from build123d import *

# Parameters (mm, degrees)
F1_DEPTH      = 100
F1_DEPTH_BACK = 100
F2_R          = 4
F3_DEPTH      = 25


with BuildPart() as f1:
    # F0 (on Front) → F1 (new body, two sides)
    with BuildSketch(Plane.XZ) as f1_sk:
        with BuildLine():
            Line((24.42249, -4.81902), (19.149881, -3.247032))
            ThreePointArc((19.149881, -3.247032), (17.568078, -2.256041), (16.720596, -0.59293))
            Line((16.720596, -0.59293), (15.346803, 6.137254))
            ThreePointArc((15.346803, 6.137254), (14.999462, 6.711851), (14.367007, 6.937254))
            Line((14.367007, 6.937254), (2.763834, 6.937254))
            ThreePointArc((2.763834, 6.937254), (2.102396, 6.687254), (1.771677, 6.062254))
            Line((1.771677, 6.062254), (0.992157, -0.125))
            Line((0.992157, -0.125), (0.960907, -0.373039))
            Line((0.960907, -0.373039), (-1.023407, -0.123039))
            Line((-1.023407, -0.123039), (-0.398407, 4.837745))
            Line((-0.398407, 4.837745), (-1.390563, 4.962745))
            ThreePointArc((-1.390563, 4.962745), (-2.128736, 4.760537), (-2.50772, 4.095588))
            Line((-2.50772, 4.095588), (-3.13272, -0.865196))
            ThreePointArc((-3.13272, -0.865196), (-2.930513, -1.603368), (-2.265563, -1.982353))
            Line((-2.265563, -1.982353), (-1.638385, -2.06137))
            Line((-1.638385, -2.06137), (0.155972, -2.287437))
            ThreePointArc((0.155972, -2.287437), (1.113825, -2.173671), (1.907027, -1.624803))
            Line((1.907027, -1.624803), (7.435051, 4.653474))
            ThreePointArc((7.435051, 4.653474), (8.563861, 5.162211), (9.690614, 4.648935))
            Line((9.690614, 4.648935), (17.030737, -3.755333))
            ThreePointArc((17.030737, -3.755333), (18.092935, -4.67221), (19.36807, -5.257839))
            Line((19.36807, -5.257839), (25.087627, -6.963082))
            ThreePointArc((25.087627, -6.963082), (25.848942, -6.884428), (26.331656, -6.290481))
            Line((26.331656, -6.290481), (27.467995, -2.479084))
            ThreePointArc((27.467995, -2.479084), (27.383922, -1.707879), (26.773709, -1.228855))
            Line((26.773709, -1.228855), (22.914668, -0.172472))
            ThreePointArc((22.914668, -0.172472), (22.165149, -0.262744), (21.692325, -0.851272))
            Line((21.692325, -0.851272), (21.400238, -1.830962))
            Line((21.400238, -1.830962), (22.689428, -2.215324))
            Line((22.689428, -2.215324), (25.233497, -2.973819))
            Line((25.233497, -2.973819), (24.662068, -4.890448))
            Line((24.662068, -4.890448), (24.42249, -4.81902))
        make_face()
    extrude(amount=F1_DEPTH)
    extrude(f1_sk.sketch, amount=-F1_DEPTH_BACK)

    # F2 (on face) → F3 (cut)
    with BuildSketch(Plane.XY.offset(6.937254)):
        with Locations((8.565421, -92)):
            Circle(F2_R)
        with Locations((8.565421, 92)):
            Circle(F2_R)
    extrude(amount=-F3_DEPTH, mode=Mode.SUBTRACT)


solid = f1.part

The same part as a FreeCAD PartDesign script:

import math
import FreeCAD as App
import Part
import Sketcher

V = App.Vector

doc = App.newDocument("Part")
params = doc.addObject("Spreadsheet::Sheet", "Params")
for row, (alias, value) in enumerate([
    ("sketch1_radius", "1.000001 mm"),
    ("sketch1_radius2", "1 mm"),
    ("sketch1_radius3", "1 mm"),
    ("sketch1_radius4", "1 mm"),
    ("sketch1_radius5", "4.999998 mm"),
    ("pad1_length", "100 mm"),
    ("pad1_length2", "100 mm"),
    ("sketch2_diameter", "8 mm"),
    ("pocket1_length", "25 mm"),
], start=1):
    params.set(f"A{row}", alias)
    params.set(f"B{row}", "=" + value)
    params.setAlias(f"B{row}", alias)

body = doc.addObject("PartDesign::Body", "Body")

sketch1 = body.newObject("Sketcher::SketchObject", "Sketch")
sketch1.AttachmentSupport = (doc.getObject("XZ_Plane"), [""])
sketch1.MapMode = "FlatFace"
sketch1.addGeometry(Part.LineSegment(V(24.42249, -4.81902, 0), V(19.149881, -3.247032, 0)), False)
sketch1.addGeometry(Part.ArcOfCircle(Part.Circle(V(20.14988, 0.107068, 0), V(0, 0, 1), 3.499998), math.radians(-168.463068), math.radians(-106.601538)), False)
sketch1.addGeometry(Part.LineSegment(V(16.720596, -0.59293, 0), V(15.346803, 6.137254, 0)), False)
sketch1.addGeometry(Part.ArcOfCircle(Part.Circle(V(14.367007, 5.937253, 0), V(0, 0, 1), 1.000001), math.radians(11.536982), math.radians(89.999983)), False)
sketch1.addGeometry(Part.LineSegment(V(14.367007, 6.937254, 0), V(2.763834, 6.937254, 0)), False)
sketch1.addGeometry(Part.ArcOfCircle(Part.Circle(V(2.763834, 5.937254, 0), V(0, 0, 1), 1), math.radians(89.999994), math.radians(172.819236)), False)
sketch1.addGeometry(Part.LineSegment(V(1.771677, 6.062254, 0), V(0.992157, -0.125, 0)), False)
sketch1.addGeometry(Part.LineSegment(V(0.992157, -0.125, 0), V(0.960907, -0.373039, 0)), False)
sketch1.addGeometry(Part.LineSegment(V(0.960907, -0.373039, 0), V(-1.023407, -0.123039, 0)), False)
sketch1.addGeometry(Part.LineSegment(V(-1.023407, -0.123039, 0), V(-0.398407, 4.837745, 0)), False)
sketch1.addGeometry(Part.LineSegment(V(-0.398407, 4.837745, 0), V(-1.390563, 4.962745, 0)), False)
sketch1.addGeometry(Part.ArcOfCircle(Part.Circle(V(-1.515563, 3.970588, 0), V(0, 0, 1), 1), math.radians(82.819243), math.radians(172.819249)), False)
sketch1.addGeometry(Part.LineSegment(V(-2.50772, 4.095588, 0), V(-3.13272, -0.865196, 0)), False)
sketch1.addGeometry(Part.ArcOfCircle(Part.Circle(V(-2.140564, -0.990196, 0), V(0, 0, 1), 1), math.radians(172.819219), math.radians(262.819273)), False)
sketch1.addGeometry(Part.LineSegment(V(-2.265563, -1.982353, 0), V(-1.638385, -2.06137, 0)), False)
sketch1.addGeometry(Part.LineSegment(V(-1.638385, -2.06137, 0), V(0.155972, -2.287437, 0)), False)
sketch1.addGeometry(Part.ArcOfCircle(Part.Circle(V(0.405974, -0.303128, 0), V(0, 0, 1), 1.999996), math.radians(-97.180843), math.radians(-41.363881)), False)
sketch1.addGeometry(Part.LineSegment(V(1.907027, -1.624803, 0), V(7.435051, 4.653474, 0)), False)
sketch1.addGeometry(Part.ArcOfCircle(Part.Circle(V(8.560842, 3.662212, 0), V(0, 0, 1), 1.500002), math.radians(41.133406), math.radians(138.635995)), False)
sketch1.addGeometry(Part.LineSegment(V(9.690614, 4.648935, 0), V(17.030737, -3.755333, 0)), False)
sketch1.addGeometry(Part.ArcOfCircle(Part.Circle(V(20.796639, -0.466266, 0), V(0, 0, 1), 4.999998), math.radians(-138.866659), math.radians(-106.601531)), False)
sketch1.addGeometry(Part.LineSegment(V(19.36807, -5.257839, 0), V(25.087627, -6.963082, 0)), False)
sketch1.addGeometry(Part.ArcOfCircle(Part.Circle(V(25.373341, -6.004766, 0), V(0, 0, 1), 1), math.radians(-106.601508), math.radians(-16.601555)), False)
sketch1.addGeometry(Part.LineSegment(V(26.331656, -6.290481, 0), V(27.467995, -2.479084, 0)), False)
sketch1.addGeometry(Part.ArcOfCircle(Part.Circle(V(26.50968, -2.19337, 0), V(0, 0, 1), 1), math.radians(-16.601555), math.radians(74.690753)), False)
sketch1.addGeometry(Part.LineSegment(V(26.773709, -1.228855, 0), V(22.914668, -0.172472, 0)), False)
sketch1.addGeometry(Part.ArcOfCircle(Part.Circle(V(22.650638, -1.136984, 0), V(0, 0, 1), 0.999998), math.radians(74.690644), math.radians(163.398543)), False)
sketch1.addGeometry(Part.LineSegment(V(21.692325, -0.851272, 0), V(21.400238, -1.830962, 0)), False)
sketch1.addGeometry(Part.LineSegment(V(21.400238, -1.830962, 0), V(22.689428, -2.215324, 0)), False)
sketch1.addGeometry(Part.LineSegment(V(22.689428, -2.215324, 0), V(25.233497, -2.973819, 0)), False)
sketch1.addGeometry(Part.LineSegment(V(25.233497, -2.973819, 0), V(24.662068, -4.890448, 0)), False)
sketch1.addGeometry(Part.LineSegment(V(24.662068, -4.890448, 0), V(24.42249, -4.81902, 0)), False)
sketch1.addConstraint(Sketcher.Constraint("Coincident", 0, 2, 1, 2))
sketch1.addConstraint(Sketcher.Constraint("Coincident", 1, 1, 2, 1))
sketch1.addConstraint(Sketcher.Constraint("Coincident", 2, 2, 3, 1))
sketch1.addConstraint(Sketcher.Constraint("Coincident", 3, 2, 4, 1))
sketch1.addConstraint(Sketcher.Constraint("Coincident", 4, 2, 5, 1))
sketch1.addConstraint(Sketcher.Constraint("Coincident", 5, 2, 6, 1))
sketch1.addConstraint(Sketcher.Constraint("Coincident", 6, 2, 7, 1))
sketch1.addConstraint(Sketcher.Constraint("Coincident", 7, 2, 8, 1))
sketch1.addConstraint(Sketcher.Constraint("Coincident", 8, 2, 9, 1))
sketch1.addConstraint(Sketcher.Constraint("Coincident", 9, 2, 10, 1))
sketch1.addConstraint(Sketcher.Constraint("Coincident", 10, 2, 11, 1))
sketch1.addConstraint(Sketcher.Constraint("Coincident", 11, 2, 12, 1))
sketch1.addConstraint(Sketcher.Constraint("Coincident", 12, 2, 13, 1))
sketch1.addConstraint(Sketcher.Constraint("Coincident", 13, 2, 14, 1))
sketch1.addConstraint(Sketcher.Constraint("Coincident", 14, 2, 15, 1))
sketch1.addConstraint(Sketcher.Constraint("Coincident", 15, 2, 16, 1))
sketch1.addConstraint(Sketcher.Constraint("Coincident", 16, 2, 17, 1))
sketch1.addConstraint(Sketcher.Constraint("Coincident", 17, 2, 18, 2))
sketch1.addConstraint(Sketcher.Constraint("Coincident", 18, 1, 19, 1))
sketch1.addConstraint(Sketcher.Constraint("Coincident", 19, 2, 20, 1))
sketch1.addConstraint(Sketcher.Constraint("Coincident", 20, 2, 21, 1))
sketch1.addConstraint(Sketcher.Constraint("Coincident", 21, 2, 22, 1))
sketch1.addConstraint(Sketcher.Constraint("Coincident", 22, 2, 23, 1))
sketch1.addConstraint(Sketcher.Constraint("Coincident", 23, 2, 24, 1))
sketch1.addConstraint(Sketcher.Constraint("Coincident", 24, 2, 25, 1))
sketch1.addConstraint(Sketcher.Constraint("Coincident", 25, 2, 26, 1))
sketch1.addConstraint(Sketcher.Constraint("Coincident", 26, 2, 27, 1))
sketch1.addConstraint(Sketcher.Constraint("Coincident", 27, 2, 28, 1))
sketch1.addConstraint(Sketcher.Constraint("Coincident", 28, 2, 29, 1))
sketch1.addConstraint(Sketcher.Constraint("Coincident", 29, 2, 30, 1))
sketch1.addConstraint(Sketcher.Constraint("Coincident", 30, 2, 31, 1))
sketch1.addConstraint(Sketcher.Constraint("Coincident", 31, 2, 0, 1))
sketch1.addConstraint(Sketcher.Constraint("Horizontal", 4))
sketch1.addConstraint(Sketcher.Constraint("Radius", 3, 1.000001))
sketch1.addConstraint(Sketcher.Constraint("Radius", 5, 1.0))
sketch1.addConstraint(Sketcher.Constraint("Radius", 11, 1.0))
sketch1.addConstraint(Sketcher.Constraint("Radius", 13, 1.0))
sketch1.addConstraint(Sketcher.Constraint("Radius", 20, 4.999998))
sketch1.addConstraint(Sketcher.Constraint("Radius", 22, 1.0))
sketch1.addConstraint(Sketcher.Constraint("Radius", 24, 1.0))
sketch1.addConstraint(Sketcher.Constraint("Distance", 8, 2.000001))
sketch1.addConstraint(Sketcher.Constraint("Distance", 9, 5.0))
sketch1.addConstraint(Sketcher.Constraint("Distance", 10, 0.999999))
sketch1.addConstraint(Sketcher.Constraint("Distance", 12, 5.0))
sketch1.addConstraint(Sketcher.Constraint("Distance", 30, 1.999999))
sketch1.addConstraint(Sketcher.Constraint("DistanceX", 0, 2, 1, 3, 0.999999))
sketch1.addConstraint(Sketcher.Constraint("DistanceY", 3, 3, 2, 2, 0.200001))
sketch1.addConstraint(Sketcher.Constraint("Distance", 7, 0.25))
sketch1.addConstraint(Sketcher.Constraint("Distance", 31, 0.249999))
sketch1.addConstraint(Sketcher.Constraint("DistanceY", 7, 2, 8, 2, 0.25))
sketch1.addConstraint(Sketcher.Constraint("DistanceY", 6, 2, -1, 1, 0.125))
sketch1.addConstraint(Sketcher.Constraint("Radius", 1, 3.499998))
sketch1.addConstraint(Sketcher.Constraint("Radius", 16, 1.999996))
sketch1.addConstraint(Sketcher.Constraint("Radius", 18, 1.500002))
sketch1.addConstraint(Sketcher.Constraint("Radius", 26, 0.999998))
sketch1.addConstraint(Sketcher.Constraint("DistanceX", 13, 3, 11, 3, 0.625))
sketch1.addConstraint(Sketcher.Constraint("DistanceX", 20, 3, 26, 3, 1.853999))
sketch1.addConstraint(Sketcher.Constraint("DistanceY", 5, 3, 5, 2, 0.125))
sketch1.addConstraint(Sketcher.Constraint("DistanceX", 8, 2, 9, 2, 0.625))
sketch1.addConstraint(Sketcher.Constraint("DistanceY", 9, 2, 10, 2, 0.125))
sketch1.addConstraint(Sketcher.Constraint("DistanceX", 11, 3, 10, 2, 0.125))
sketch1.addConstraint(Sketcher.Constraint("DistanceY", 11, 3, 11, 2, 0.125))
sketch1.addConstraint(Sketcher.Constraint("DistanceY", 13, 3, 12, 2, 0.125))
sketch1.addConstraint(Sketcher.Constraint("DistanceX", 13, 2, 13, 3, 0.124999))
sketch1.addConstraint(Sketcher.Constraint("DistanceX", 20, 3, 22, 3, 4.576701))
sketch1.addConstraint(Sketcher.Constraint("DistanceY", 22, 3, 20, 3, 5.538501))
sketch1.addConstraint(Sketcher.Constraint("DistanceX", 18, 3, 22, 3, 16.812498))
sketch1.addConstraint(Sketcher.Constraint("DistanceX", 1, 3, 24, 3, 6.359801))
sketch1.addConstraint(Sketcher.Constraint("DistanceY", 0, 2, 1, 1, 2.654102))
sketch1.addConstraint(Sketcher.Constraint("DistanceY", 15, 2, 7, 2, 1.914398))
sketch1.addConstraint(Sketcher.Constraint("DistanceY", 19, 2, 0, 2, 0.508301))
sketch1.addConstraint(Sketcher.Constraint("DistanceX", 19, 2, 26, 3, 5.619901))
sketch1.addConstraint(Sketcher.Constraint("DistanceY", 21, 2, 22, 2, 0.672601))
sketch1.addConstraint(Sketcher.Constraint("DistanceY", 23, 2, 26, 3, 1.3421))
sketch1.addConstraint(Sketcher.Constraint("DistanceY", 26, 2, 25, 2, 0.6788))
sketch1.addConstraint(Sketcher.Constraint("DistanceX", 27, 2, 26, 3, 1.2504))
sketch1.addConstraint(Sketcher.Constraint("DistanceY", 31, 2, 29, 2, 1.845201))
sketch1.addConstraint(Sketcher.Constraint("Distance", 0, 5.501959))
sketch1.addConstraint(Sketcher.Constraint("Distance", 15, 1.808542))
sketch1.addConstraint(Sketcher.Constraint("Distance", 21, 5.968349))
sketch1.addConstraint(Sketcher.Constraint("Distance", 29, 2.654732))
sketch1.addConstraint(Sketcher.Constraint("DistanceX", 4, 2, 4, 1, 11.603173))
sketch1.addConstraint(Sketcher.Constraint("DistanceX", -1, 1, 1, 3, 20.14988))
sketch1.addConstraint(Sketcher.Constraint("DistanceY", -1, 1, 11, 3, 3.970588))
sketch1.addConstraint(Sketcher.Constraint("DistanceY", 16, 3, -1, 1, 0.303128))
sketch1.addConstraint(Sketcher.Constraint("DistanceY", -1, 1, 18, 3, 3.662212))
sketch1.addConstraint(Sketcher.Constraint("DistanceX", -1, 1, 20, 3, 20.796639))
sketch1.addConstraint(Sketcher.Constraint("DistanceY", 24, 3, -1, 1, 2.19337))
sketch1.addConstraint(Sketcher.Constraint("DistanceY", 0, 2, -1, 1, 3.247032))
sketch1.addConstraint(Sketcher.Constraint("DistanceX", 11, 2, -1, 1, 2.50772))
sketch1.addConstraint(Sketcher.Constraint("DistanceY", 14, 2, -1, 1, 2.06137))
sketch1.addConstraint(Sketcher.Constraint("DistanceX", -1, 1, 17, 2, 7.435051))
sketch1.addConstraint(Sketcher.Constraint("DistanceX", -1, 1, 20, 2, 19.36807))
sketch1.addConstraint(Sketcher.Constraint("DistanceX", -1, 1, 24, 2, 26.773709))
sketch1.addConstraint(Sketcher.Constraint("DistanceY", 25, 2, -1, 1, 0.172472))
sketch1.addConstraint(Sketcher.Constraint("DistanceY", 29, 2, -1, 1, 2.973819))
sketch1.addConstraint(Sketcher.Constraint("DistanceX", -1, 1, 30, 2, 24.662068))
sketch1.addConstraint(Sketcher.Constraint("DistanceX", 11, 3, 3, 3, 15.88257))
sketch1.addConstraint(Sketcher.Constraint("DistanceY", 13, 3, 5, 3, 6.92745))
sketch1.addConstraint(Sketcher.Constraint("DistanceX", 13, 3, 16, 3, 2.546538))
sketch1.addConstraint(Sketcher.Constraint("DistanceX", 16, 3, 5, 3, 2.357859))
sketch1.addConstraint(Sketcher.Constraint("DistanceY", 26, 3, 20, 3, 0.670718))
sketch1.addConstraint(Sketcher.Constraint("DistanceX", 3, 2, 1, 1, 2.353589))
sketch1.addConstraint(Sketcher.Constraint("DistanceX", 7, 2, 16, 2, 0.94612))
sketch1.addConstraint(Sketcher.Constraint("DistanceX", 18, 3, 18, 1, 1.129772))
sketch1.addConstraint(Sketcher.Constraint("DistanceY", 27, 2, 26, 2, 0.97969))
sketch1.addConstraint(Sketcher.Constraint("DistanceX", 26, 3, 28, 2, 0.03879))
sketch1.setExpression("Constraints[33]", "Params.sketch1_radius")
sketch1.setExpression("Constraints[34]", "Params.sketch1_radius2")
sketch1.setExpression("Constraints[35]", "Params.sketch1_radius3")
sketch1.setExpression("Constraints[36]", "Params.sketch1_radius4")
sketch1.setExpression("Constraints[37]", "Params.sketch1_radius5")
pad1 = body.newObject("PartDesign::Pad", "Pad")
pad1.Profile = sketch1
pad1.Type = "TwoLengths"
pad1.setExpression("Length", "Params.pad1_length")
pad1.setExpression("Length2", "Params.pad1_length2")

sketch2 = body.newObject("Sketcher::SketchObject", "Sketch001")
sketch2.AttachmentSupport = (doc.getObject("XY_Plane"), [""])
sketch2.MapMode = "FlatFace"
sketch2.AttachmentOffset = App.Placement(V(0, 0, 6.937254), App.Rotation())
sketch2.addGeometry(Part.Circle(V(8.6, -92, 0), V(0, 0, 1), 4), False)
sketch2.addGeometry(Part.Circle(V(8.6, 92, 0), V(0, 0, 1), 4), False)
sketch2.addConstraint(Sketcher.Constraint("Equal", 0, 1))
sketch2.addConstraint(Sketcher.Constraint("Symmetric", 0, 3, 1, 3, -1))
sketch2.addConstraint(Sketcher.Constraint("Diameter", 0, 8.0))
sketch2.addConstraint(Sketcher.Constraint("DistanceY", 0, 3, -1, 1, 92.0))
sketch2.addConstraint(Sketcher.Constraint("DistanceX", -1, 1, 0, 3, 8.565421))
sketch2.setExpression("Constraints[2]", "Params.sketch2_diameter")
pocket1 = body.newObject("PartDesign::Pocket", "Pocket")
pocket1.Profile = sketch2
pocket1.setExpression("Length", "Params.pocket1_length")

doc.recompute()
